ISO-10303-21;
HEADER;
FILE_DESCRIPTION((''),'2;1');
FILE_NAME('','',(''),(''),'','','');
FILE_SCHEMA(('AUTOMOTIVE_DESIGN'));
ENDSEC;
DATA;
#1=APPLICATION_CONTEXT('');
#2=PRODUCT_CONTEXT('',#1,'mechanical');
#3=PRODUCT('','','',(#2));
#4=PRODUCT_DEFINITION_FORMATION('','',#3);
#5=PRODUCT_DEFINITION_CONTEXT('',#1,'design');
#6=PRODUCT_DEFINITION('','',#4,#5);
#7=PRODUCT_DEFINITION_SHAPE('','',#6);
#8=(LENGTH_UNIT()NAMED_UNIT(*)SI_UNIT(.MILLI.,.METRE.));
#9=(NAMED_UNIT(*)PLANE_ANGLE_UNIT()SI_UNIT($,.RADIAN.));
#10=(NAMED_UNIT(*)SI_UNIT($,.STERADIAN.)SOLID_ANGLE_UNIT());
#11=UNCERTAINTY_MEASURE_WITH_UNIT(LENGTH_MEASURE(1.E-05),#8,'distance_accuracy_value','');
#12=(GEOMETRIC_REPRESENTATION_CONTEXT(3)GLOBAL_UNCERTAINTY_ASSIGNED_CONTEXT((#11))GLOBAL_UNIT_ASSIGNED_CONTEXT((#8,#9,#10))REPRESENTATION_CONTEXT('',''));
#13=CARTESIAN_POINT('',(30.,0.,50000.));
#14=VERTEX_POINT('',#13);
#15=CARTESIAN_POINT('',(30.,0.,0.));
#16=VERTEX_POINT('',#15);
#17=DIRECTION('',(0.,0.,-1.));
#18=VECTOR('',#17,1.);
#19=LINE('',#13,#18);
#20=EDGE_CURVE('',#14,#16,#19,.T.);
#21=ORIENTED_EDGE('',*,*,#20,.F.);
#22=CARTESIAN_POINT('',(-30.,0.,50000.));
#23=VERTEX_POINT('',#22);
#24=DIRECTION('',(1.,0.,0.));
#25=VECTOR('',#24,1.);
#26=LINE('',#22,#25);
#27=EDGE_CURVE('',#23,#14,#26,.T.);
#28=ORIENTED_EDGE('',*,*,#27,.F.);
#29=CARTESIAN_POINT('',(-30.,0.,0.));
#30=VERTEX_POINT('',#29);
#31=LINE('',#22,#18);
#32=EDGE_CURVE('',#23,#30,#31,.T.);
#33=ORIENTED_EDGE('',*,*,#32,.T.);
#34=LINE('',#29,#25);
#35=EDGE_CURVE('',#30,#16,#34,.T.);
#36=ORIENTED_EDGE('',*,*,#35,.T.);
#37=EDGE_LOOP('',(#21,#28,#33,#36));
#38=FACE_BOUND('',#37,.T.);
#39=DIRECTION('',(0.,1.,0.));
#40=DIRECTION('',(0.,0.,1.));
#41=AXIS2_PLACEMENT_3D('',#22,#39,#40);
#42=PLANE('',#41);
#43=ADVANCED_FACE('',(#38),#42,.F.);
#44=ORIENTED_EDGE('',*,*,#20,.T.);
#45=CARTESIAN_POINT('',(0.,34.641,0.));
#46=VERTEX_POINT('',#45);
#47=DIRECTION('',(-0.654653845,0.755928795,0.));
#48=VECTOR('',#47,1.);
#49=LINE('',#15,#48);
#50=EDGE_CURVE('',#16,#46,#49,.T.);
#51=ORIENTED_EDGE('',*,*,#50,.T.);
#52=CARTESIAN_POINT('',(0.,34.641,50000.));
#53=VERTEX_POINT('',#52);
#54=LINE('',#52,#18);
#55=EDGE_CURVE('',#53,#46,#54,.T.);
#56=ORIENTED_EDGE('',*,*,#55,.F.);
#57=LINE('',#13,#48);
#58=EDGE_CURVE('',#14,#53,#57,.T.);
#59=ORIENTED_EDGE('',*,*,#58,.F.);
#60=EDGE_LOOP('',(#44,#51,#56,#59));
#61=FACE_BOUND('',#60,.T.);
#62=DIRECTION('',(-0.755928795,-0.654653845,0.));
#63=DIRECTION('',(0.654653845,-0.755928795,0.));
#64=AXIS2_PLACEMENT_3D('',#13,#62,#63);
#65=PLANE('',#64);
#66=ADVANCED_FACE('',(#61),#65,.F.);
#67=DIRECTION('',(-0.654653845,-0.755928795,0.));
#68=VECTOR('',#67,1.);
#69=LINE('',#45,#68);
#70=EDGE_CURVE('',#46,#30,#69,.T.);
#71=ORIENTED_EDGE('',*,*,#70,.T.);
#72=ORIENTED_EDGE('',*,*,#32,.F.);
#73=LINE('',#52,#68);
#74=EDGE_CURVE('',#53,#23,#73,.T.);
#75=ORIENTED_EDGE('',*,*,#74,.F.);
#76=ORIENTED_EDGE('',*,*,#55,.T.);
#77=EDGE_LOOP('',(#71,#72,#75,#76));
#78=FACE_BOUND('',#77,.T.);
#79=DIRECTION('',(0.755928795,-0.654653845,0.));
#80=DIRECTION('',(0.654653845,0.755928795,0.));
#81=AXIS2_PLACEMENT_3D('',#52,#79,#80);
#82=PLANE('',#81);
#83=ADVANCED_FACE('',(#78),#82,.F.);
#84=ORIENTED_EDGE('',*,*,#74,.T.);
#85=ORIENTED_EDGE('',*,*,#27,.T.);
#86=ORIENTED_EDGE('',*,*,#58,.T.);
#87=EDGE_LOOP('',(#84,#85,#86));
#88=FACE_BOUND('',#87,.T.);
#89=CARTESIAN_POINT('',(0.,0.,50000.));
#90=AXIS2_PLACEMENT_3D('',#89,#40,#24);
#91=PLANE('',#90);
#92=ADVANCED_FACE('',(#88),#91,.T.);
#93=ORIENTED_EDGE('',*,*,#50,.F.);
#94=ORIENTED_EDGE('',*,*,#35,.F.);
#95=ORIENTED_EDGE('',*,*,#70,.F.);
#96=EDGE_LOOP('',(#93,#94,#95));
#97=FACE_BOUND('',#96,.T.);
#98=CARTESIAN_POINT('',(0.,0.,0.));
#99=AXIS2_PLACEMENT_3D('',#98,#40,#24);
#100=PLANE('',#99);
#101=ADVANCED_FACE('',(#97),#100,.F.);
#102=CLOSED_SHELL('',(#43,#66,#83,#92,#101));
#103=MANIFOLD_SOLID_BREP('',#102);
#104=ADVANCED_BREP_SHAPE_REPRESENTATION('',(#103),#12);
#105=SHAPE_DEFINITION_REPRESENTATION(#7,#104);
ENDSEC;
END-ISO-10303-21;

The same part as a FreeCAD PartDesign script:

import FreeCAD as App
import Part
import Sketcher

V = App.Vector
Q = App.Units.Quantity


def add_polygon(sketch, points):
    """Adds a closed chain of lines whose ends are joined by coincident constraints."""
    first, n = sketch.GeometryCount, len(points)
    for a, b in zip(points, points[1:] + points[:1]):
        sketch.addGeometry(Part.LineSegment(App.Vector(*a, 0), App.Vector(*b, 0)), False)
    for i in range(n):
        sketch.addConstraint(Sketcher.Constraint("Coincident", first + i, 2, first + (i + 1) % n, 1))

doc = App.newDocument("Part")
body = doc.addObject("PartDesign::Body", "Body")

# Sketch on XY plane
sketch1 = doc.addObject("Sketcher::SketchObject", "Sketch")
body.addObject(sketch1)
sketch1.AttachmentSupport = (doc.XY_Plane, [""])
sketch1.MapMode = "FlatFace"
add_polygon(sketch1, [(0, 35), (-30, 0), (30, 0)])  # lines 0-2
sketch1.addConstraint([
    Sketcher.Constraint("Horizontal", 1),
    Sketcher.Constraint("Symmetric", 0, 2, 1, 2, -1, 1),
    Sketcher.Constraint("PointOnObject", 2, 2, -2),
    Sketcher.Constraint("DistanceX", 1, 1, 1, 2, Q("60 mm")),
    Sketcher.Constraint("DistanceY", -1, 1, 2, 2, Q("34.641 mm")),
])
pad1 = doc.addObject("PartDesign::Pad", "Pad")
body.addObject(pad1)
pad1.Profile = sketch1
pad1.Length = 50000

doc.recompute()
